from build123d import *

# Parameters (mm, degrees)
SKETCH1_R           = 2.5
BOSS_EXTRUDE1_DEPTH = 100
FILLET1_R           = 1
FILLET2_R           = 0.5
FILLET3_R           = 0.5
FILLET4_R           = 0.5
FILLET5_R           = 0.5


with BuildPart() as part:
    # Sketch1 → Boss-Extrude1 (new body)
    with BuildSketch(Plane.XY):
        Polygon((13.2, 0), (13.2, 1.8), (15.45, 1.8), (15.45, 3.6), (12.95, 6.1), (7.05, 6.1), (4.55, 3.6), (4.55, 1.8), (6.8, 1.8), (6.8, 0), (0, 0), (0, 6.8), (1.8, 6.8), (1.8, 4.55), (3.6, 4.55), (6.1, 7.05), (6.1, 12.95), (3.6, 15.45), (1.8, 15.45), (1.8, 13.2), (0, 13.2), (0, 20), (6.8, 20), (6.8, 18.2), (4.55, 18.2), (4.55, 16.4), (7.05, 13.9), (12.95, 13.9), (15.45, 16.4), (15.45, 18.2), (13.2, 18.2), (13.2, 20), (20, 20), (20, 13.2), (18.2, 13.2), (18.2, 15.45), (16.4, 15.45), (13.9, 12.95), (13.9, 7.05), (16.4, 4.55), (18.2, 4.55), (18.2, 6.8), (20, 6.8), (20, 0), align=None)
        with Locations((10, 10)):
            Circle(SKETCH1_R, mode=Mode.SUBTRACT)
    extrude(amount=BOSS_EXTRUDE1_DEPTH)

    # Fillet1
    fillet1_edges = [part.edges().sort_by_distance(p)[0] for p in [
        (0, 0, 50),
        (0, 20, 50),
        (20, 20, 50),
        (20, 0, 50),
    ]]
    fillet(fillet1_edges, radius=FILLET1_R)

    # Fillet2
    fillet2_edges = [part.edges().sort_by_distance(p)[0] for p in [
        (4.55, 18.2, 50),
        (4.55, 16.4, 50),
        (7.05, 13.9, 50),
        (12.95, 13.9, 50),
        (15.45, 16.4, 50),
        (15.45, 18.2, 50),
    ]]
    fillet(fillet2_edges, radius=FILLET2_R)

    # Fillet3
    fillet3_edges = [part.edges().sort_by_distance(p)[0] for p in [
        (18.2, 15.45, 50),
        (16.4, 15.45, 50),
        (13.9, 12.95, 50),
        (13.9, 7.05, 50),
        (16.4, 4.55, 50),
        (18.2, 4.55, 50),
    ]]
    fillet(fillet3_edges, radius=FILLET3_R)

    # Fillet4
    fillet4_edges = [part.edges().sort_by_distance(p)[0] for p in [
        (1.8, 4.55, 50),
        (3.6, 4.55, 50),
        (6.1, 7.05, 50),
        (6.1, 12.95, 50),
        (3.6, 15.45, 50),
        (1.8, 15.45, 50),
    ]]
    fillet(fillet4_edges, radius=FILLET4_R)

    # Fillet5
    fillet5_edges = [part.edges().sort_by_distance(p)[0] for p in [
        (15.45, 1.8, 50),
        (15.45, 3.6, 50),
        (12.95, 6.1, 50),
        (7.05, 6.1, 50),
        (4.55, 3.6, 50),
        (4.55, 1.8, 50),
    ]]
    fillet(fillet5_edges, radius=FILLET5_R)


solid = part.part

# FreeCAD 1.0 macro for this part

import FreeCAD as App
import Part
import Sketcher
Q = App.Units.Quantity


def edges_at(feature, points):
    """Names of the edges that pass closest to the given points."""
    edges = feature.Shape.Edges
    near = lambda p: min(range(len(edges)), key=lambda i: edges[i].distToShape(Part.Vertex(*p))[0])
    return sorted({f"Edge{near(p) + 1}" for p in points})


def add_polygon(sketch, points):
    """Adds a closed chain of lines whose ends are joined by coincident constraints."""
    first, n = sketch.GeometryCount, len(points)
    for a, b in zip(points, points[1:] + points[:1]):
        sketch.addGeometry(Part.LineSegment(App.Vector(*a, 0), App.Vector(*b, 0)), False)
    for i in range(n):
        sketch.addConstraint(Sketcher.Constraint("Coincident", first + i, 2, first + (i + 1) % n, 1))

doc = App.newDocument("Part")
body = doc.addObject("PartDesign::Body", "Body")

# Sketch on XY plane
sketch1 = body.newObject("Sketcher::SketchObject", "Sketch")
sketch1.AttachmentSupport = (doc.getObject("XY_Plane"), [""])
sketch1.MapMode = "FlatFace"
add_polygon(sketch1, [(13.2, 1.8), (13.2, 0), (20, 0), (20, 6.8), (18.2, 6.8), (18.2, 4.5), (16.4, 4.5), (13.9, 7), (13.9, 12.9), (16.4, 15.4), (18.2, 15.4), (18.2, 13.2), (20, 13.2), (20, 20), (13.2, 20), (13.2, 18.2), (15.4, 18.2), (15.4, 16.4), (12.9, 13.9), (7, 13.9), (4.5, 16.4), (4.5, 18.2), (6.8, 18.2), (6.8, 20), (0, 20), (0, 13.2), (1.8, 13.2), (1.8, 15.4), (3.6, 15.4), (6.1, 12.9), (6.1, 7), (3.6, 4.5), (1.8, 4.5), (1.8, 6.8), (0, 6.8), (0, 0), (6.8, 0), (6.8, 1.8), (4.5, 1.8), (4.5, 3.6), (7, 6.1), (12.9, 6.1), (15.4, 3.6), (15.4, 1.8)])  # lines 0-43
sketch1.addGeometry(Part.Circle(App.Vector(10, 10, 0), App.Vector(0, 0, 1), 2.5), False)  # 44
sketch1.addConstraint([
    Sketcher.Constraint("Vertical", 0),
    Sketcher.Constraint("Horizontal", 1),
    Sketcher.Constraint("Vertical", 2),
    Sketcher.Constraint("Horizontal", 3),
    Sketcher.Constraint("Vertical", 4),
    Sketcher.Constraint("Horizontal", 5),
    Sketcher.Constraint("Vertical", 7),
    Sketcher.Constraint("Horizontal", 9),
    Sketcher.Constraint("Vertical", 10),
    Sketcher.Constraint("Horizontal", 11),
    Sketcher.Constraint("Vertical", 12),
    Sketcher.Constraint("Horizontal", 13),
    Sketcher.Constraint("Vertical", 14),
    Sketcher.Constraint("Horizontal", 15),
    Sketcher.Constraint("Vertical", 16),
    Sketcher.Constraint("Horizontal", 18),
    Sketcher.Constraint("Vertical", 20),
    Sketcher.Constraint("Horizontal", 21),
    Sketcher.Constraint("Vertical", 22),
    Sketcher.Constraint("Horizontal", 23),
    Sketcher.Constraint("Vertical", 24),
    Sketcher.Constraint("Horizontal", 25),
    Sketcher.Constraint("Vertical", 26),
    Sketcher.Constraint("Horizontal", 27),
    Sketcher.Constraint("Vertical", 29),
    Sketcher.Constraint("Horizontal", 31),
    Sketcher.Constraint("Vertical", 32),
    Sketcher.Constraint("Horizontal", 33),
    Sketcher.Constraint("Vertical", 34),
    Sketcher.Constraint("Horizontal", 35),
    Sketcher.Constraint("Vertical", 36),
    Sketcher.Constraint("Horizontal", 37),
    Sketcher.Constraint("Vertical", 38),
    Sketcher.Constraint("Horizontal", 40),
    Sketcher.Constraint("Vertical", 42),
    Sketcher.Constraint("Horizontal", 43),
    Sketcher.Constraint("Coincident", 34, 2, -1, 1),
    Sketcher.Constraint("PointOnObject", 0, 2, -1),
    Sketcher.Constraint("PointOnObject", 23, 2, -2),
    Sketcher.Constraint("Perpendicular", 6, 8),
    Sketcher.Constraint("Parallel", 8, 17),
    Sketcher.Constraint("Perpendicular", 17, 19),
    Sketcher.Constraint("Parallel", 19, 28),
    Sketcher.Constraint("Perpendicular", 28, 30),
    Sketcher.Constraint("Parallel", 30, 39),
    Sketcher.Constraint("Perpendicular", 39, 41),
    Sketcher.Constraint("Horizontal", 16, 2, 19, 2),
    Sketcher.Constraint("Horizontal", 15, 2, 20, 2),
    Sketcher.Constraint("Horizontal", 13, 2, 22, 2),
    Sketcher.Constraint("Horizontal", 11, 2, 24, 2),
    Sketcher.Constraint("Horizontal", 9, 2, 26, 2),
    Sketcher.Constraint("Horizontal", 7, 2, 28, 2),
    Sketcher.Constraint("Horizontal", 6, 2, 29, 2),
    Sketcher.Constraint("Horizontal", 5, 2, 30, 2),
    Sketcher.Constraint("Horizontal", 3, 2, 32, 2),
    Sketcher.Constraint("Horizontal", 38, 2, 41, 2),
    Sketcher.Constraint("Horizontal", 37, 2, 42, 2),
    Sketcher.Constraint("Vertical", 5, 2, 8, 2),
    Sketcher.Constraint("Vertical", 4, 2, 9, 2),
    Sketcher.Constraint("Vertical", 2, 2, 11, 2),
    Sketcher.Constraint("Vertical", 0, 2, 13, 2),
    Sketcher.Constraint("Vertical", 27, 2, 30, 2),
    Sketcher.Constraint("Vertical", 26, 2, 31, 2),
    Sketcher.Constraint("Vertical", 22, 2, 35, 2),
    Sketcher.Constraint("Vertical", 20, 2, 37, 2),
    Sketcher.Constraint("Vertical", 18, 2, 39, 2),
    Sketcher.Constraint("Vertical", 17, 2, 40, 2),
    Sketcher.Constraint("Equal", 3, 5),
    Sketcher.Constraint("Equal", 15, 21),
    Sketcher.Constraint("Equal", 13, 23),
    Sketcher.Constraint("Equal", 11, 25),
    Sketcher.Constraint("Equal", 25, 27),
    Sketcher.Constraint("Equal", 33, 0),
    Sketcher.Constraint("Equal", 35, 2),
    Sketcher.Constraint("Equal", 43, 4),
    Sketcher.Constraint("Equal", 40, 7),
    Sketcher.Constraint("Equal", 4, 10),
    Sketcher.Constraint("Equal", 2, 12),
    Sketcher.Constraint("Equal", 0, 14),
    Sketcher.Constraint("Equal", 14, 16),
    Sketcher.Constraint("Equal", 36, 38),
    Sketcher.Constraint("Equal", 8, 17),
    Sketcher.Constraint("Diameter", 44, Q("5 mm")),
    Sketcher.Constraint("DistanceX", 1, 1, 1, 2, Q("6.8 mm")),
    Sketcher.Constraint("DistanceX", 3, 2, 3, 1, Q("1.8 mm")),
    Sketcher.Constraint("DistanceX", 18, 2, 18, 1, Q("5.9 mm")),
    Sketcher.Constraint("DistanceX", -1, 1, 44, 3, Q("10 mm")),
    Sketcher.Constraint("DistanceY", -1, 1, 44, 3, Q("10 mm")),
    Sketcher.Constraint("DistanceX", -1, 1, 1, 2, Q("20 mm")),
    Sketcher.Constraint("DistanceX", 15, 1, 15, 2, Q("2.25 mm")),
])
pad1 = body.newObject("PartDesign::Pad", "Pad")
pad1.Profile = sketch1
pad1.Length = 100
doc.recompute()

fillet = body.newObject("PartDesign::Fillet", "Fillet")
fillet.Base = (pad1, edges_at(pad1, [
    (0, 0, 50),
    (0, 20, 50),
    (20, 20, 50),
    (20, 0, 50),
]))
fillet.Radius = 1
doc.recompute()

fillet2 = body.newObject("PartDesign::Fillet", "Fillet001")
fillet2.Base = (fillet, edges_at(fillet, [
    (4.55, 18.2, 50),
    (4.55, 16.4, 50),
    (7.05, 13.9, 50),
    (12.95, 13.9, 50),
    (15.45, 16.4, 50),
    (15.45, 18.2, 50),
]))
fillet2.Radius = 0.5
doc.recompute()

fillet3 = body.newObject("PartDesign::Fillet", "Fillet002")
fillet3.Base = (fillet2, edges_at(fillet2, [
    (18.2, 15.45, 50),
    (16.4, 15.45, 50),
    (13.9, 12.95, 50),
    (13.9, 7.05, 50),
    (16.4, 4.55, 50),
    (18.2, 4.55, 50),
]))
fillet3.Radius = 0.5
doc.recompute()

fillet4 = body.newObject("PartDesign::Fillet", "Fillet003")
fillet4.Base = (fillet3, edges_at(fillet3, [
    (1.8, 4.55, 50),
    (3.6, 4.55, 50),
    (6.1, 7.05, 50),
    (6.1, 12.95, 50),
    (3.6, 15.45, 50),
    (1.8, 15.45, 50),
]))
fillet4.Radius = 0.5
doc.recompute()

fillet5 = body.newObject("PartDesign::Fillet", "Fillet004")
fillet5.Base = (fillet4, edges_at(fillet4, [
    (15.45, 1.8, 50),
    (15.45, 3.6, 50),
    (12.95, 6.1, 50),
    (7.05, 6.1, 50),
    (4.55, 3.6, 50),
    (4.55, 1.8, 50),
]))
fillet5.Radius = 0.5

doc.recompute()
